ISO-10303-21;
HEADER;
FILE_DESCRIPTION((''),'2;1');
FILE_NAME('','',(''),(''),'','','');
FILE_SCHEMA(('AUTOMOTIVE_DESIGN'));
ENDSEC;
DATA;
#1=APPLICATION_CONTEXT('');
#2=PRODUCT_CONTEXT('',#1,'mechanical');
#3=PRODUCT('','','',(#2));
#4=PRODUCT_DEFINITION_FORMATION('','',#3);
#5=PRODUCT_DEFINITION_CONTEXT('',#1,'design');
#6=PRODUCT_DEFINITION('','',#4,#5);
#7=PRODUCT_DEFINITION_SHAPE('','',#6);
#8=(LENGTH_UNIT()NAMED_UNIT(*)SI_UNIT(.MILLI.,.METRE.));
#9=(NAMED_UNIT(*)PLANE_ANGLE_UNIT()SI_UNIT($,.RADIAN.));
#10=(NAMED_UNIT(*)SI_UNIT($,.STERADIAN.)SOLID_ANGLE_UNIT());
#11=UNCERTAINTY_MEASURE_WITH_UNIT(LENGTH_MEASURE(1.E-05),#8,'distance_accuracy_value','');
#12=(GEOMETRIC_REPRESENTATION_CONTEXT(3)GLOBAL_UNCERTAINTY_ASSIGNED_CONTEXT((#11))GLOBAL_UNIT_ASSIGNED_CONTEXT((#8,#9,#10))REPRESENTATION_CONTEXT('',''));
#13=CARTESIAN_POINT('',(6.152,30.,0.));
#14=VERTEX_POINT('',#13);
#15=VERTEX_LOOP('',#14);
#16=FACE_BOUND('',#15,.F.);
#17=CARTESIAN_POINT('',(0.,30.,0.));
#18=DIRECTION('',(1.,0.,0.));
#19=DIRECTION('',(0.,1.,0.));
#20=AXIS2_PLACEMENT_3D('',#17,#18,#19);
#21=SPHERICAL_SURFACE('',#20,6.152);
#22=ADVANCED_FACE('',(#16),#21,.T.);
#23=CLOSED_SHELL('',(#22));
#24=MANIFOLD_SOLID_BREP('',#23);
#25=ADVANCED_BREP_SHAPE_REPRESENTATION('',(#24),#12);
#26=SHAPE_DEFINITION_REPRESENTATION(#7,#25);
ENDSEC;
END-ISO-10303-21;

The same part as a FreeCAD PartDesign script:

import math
import FreeCAD as App
import Part
import Sketcher
from FreeCAD import Vector
Q = App.Units.Quantity

doc = App.newDocument("Part")
body = doc.addObject("PartDesign::Body", "Body")

# Sketch on XY plane
sketch1 = body.newObject("Sketcher::SketchObject", "Sketch")
sketch1.AttachmentSupport = (doc.getObject("XY_Plane"), [""])
sketch1.MapMode = "FlatFace"
sketch1.addGeometry([
    Part.ArcOfCircle(Part.Circle(Vector(0, 30, 0), Vector(0, 0, 1), 6), math.radians(0), math.radians(180)),
    Part.LineSegment(Vector(-6, 30, 0), Vector(6, 30, 0)),
], False)
sketch1.addGeometry(Part.LineSegment(Vector(6, 30, 0), Vector(-6, 30, 0)), True)  # axis
sketch1.addConstraint([
    Sketcher.Constraint("Coincident", 0, 1, 1, 2),
    Sketcher.Constraint("Coincident", 1, 1, 0, 2),
    Sketcher.Constraint("Horizontal", 1),
    Sketcher.Constraint("Horizontal", 2),
    Sketcher.Constraint("Coincident", 2, 1, 0, 1),
    Sketcher.Constraint("PointOnObject", 0, 3, -2),
    Sketcher.Constraint("Equal", 1, 2),
    Sketcher.Constraint("DistanceY", -1, 1, 0, 3, Q("30 mm")),
    Sketcher.Constraint("DistanceY", -1, 1, 0, 1, Q("30 mm")),
    Sketcher.Constraint("Radius", 0, Q("6.152 mm")),
])
revolution = body.newObject("PartDesign::Revolution", "Revolution")
revolution.Profile = sketch1
revolution.ReferenceAxis = (sketch1, ["Axis0"])
revolution.Angle = 360

doc.recompute()
